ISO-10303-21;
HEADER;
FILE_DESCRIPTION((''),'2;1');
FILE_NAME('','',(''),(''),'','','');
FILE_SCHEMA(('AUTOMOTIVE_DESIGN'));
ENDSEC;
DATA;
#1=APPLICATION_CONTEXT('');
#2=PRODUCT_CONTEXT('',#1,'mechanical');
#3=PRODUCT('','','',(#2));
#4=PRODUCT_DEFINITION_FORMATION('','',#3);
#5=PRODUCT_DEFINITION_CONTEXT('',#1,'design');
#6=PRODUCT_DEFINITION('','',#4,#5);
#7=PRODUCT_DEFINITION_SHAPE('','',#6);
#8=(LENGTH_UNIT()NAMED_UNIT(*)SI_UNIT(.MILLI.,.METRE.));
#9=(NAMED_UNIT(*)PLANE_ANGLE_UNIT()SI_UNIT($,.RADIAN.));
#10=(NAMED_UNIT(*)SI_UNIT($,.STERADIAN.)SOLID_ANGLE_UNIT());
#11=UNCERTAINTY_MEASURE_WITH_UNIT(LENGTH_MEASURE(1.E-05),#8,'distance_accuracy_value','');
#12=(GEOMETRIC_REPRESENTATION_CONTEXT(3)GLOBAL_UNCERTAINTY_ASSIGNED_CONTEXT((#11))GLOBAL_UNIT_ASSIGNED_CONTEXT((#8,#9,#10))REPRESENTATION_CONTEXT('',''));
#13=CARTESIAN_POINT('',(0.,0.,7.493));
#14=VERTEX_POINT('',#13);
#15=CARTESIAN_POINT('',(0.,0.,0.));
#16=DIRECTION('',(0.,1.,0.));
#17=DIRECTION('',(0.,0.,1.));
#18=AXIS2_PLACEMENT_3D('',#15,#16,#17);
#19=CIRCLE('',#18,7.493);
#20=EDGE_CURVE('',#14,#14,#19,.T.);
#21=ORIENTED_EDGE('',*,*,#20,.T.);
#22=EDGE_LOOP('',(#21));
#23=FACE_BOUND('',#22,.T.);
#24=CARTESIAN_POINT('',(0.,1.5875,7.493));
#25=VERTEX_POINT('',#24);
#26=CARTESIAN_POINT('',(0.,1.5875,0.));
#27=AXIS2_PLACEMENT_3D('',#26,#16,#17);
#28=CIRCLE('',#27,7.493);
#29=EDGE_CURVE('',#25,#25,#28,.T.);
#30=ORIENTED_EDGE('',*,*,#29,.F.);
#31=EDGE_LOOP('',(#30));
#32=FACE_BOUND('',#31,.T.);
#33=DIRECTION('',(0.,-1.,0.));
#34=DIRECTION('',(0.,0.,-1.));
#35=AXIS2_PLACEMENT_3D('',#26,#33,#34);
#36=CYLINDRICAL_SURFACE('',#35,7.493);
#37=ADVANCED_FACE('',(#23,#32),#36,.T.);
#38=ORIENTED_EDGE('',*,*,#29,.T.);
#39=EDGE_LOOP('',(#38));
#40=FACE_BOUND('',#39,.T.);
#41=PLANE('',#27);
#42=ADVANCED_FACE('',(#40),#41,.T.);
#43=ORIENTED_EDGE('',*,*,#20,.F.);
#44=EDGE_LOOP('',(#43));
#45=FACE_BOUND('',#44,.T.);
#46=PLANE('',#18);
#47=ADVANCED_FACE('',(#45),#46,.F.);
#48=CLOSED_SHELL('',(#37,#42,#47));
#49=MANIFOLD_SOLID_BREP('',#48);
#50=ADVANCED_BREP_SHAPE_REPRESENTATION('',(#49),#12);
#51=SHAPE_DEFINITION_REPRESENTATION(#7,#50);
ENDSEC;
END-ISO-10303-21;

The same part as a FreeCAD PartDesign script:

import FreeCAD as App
import Part
import Sketcher
from FreeCAD import Vector
Q = App.Units.Quantity

doc = App.newDocument("Part")
body = doc.addObject("PartDesign::Body", "Body")

sketch1 = body.newObject("Sketcher::SketchObject", "Sketch")
sketch1.AttachmentSupport = (doc.getObject("XZ_Plane"), [""])
sketch1.MapMode = "FlatFace"
sketch1.addGeometry(Part.Circle(Vector(0, 0, 0), Vector(0, 0, 1), 7), False)
sketch1.addConstraint([
    Sketcher.Constraint("Coincident", 0, 3, -1, 1),
    Sketcher.Constraint("Diameter", 0, Q("0.59 in")),
])
pad1 = body.newObject("PartDesign::Pad", "Pad")
pad1.Profile = sketch1
pad1.Length = Q("0.0625 in")
pad1.Reversed = True

doc.recompute()
